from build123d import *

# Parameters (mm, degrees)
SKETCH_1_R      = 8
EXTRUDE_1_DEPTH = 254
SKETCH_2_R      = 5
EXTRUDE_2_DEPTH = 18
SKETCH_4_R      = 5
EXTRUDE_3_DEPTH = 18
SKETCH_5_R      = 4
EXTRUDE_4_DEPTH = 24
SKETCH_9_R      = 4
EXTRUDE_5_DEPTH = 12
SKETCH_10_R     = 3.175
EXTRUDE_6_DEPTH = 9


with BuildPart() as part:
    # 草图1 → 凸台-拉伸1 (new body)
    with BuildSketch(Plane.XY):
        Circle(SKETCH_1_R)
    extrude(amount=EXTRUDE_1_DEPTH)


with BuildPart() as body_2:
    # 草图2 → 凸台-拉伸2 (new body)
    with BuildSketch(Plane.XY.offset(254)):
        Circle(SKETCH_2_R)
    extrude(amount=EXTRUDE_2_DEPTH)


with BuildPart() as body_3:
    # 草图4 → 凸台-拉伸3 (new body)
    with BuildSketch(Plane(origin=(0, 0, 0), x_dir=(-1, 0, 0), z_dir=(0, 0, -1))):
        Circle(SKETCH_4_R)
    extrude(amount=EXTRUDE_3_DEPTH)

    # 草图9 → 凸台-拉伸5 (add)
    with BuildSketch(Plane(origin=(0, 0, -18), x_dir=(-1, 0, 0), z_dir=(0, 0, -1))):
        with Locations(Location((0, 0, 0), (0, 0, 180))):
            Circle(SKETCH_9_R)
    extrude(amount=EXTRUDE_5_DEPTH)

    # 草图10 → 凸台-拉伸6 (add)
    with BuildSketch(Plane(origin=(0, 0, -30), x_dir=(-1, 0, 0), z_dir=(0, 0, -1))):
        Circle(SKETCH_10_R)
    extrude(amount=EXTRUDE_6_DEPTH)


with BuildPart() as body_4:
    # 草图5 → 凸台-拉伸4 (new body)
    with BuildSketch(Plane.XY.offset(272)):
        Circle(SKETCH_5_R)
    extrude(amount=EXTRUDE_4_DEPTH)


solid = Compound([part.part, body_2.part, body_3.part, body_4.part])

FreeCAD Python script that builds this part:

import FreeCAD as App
import Part
import Sketcher
Q = App.Units.Quantity

doc = App.newDocument("Part")
body = doc.addObject("PartDesign::Body", "Body")

# Sketch on XY plane
sketch1 = body.newObject("Sketcher::SketchObject", "Sketch")
sketch1.AttachmentSupport = (doc.getObject("XY_Plane"), [""])
sketch1.MapMode = "FlatFace"
sketch1.addGeometry(Part.Circle(App.Vector(0, 0, 0), App.Vector(0, 0, 1), 8), False)
sketch1.addConstraint(Sketcher.Constraint("Coincident", 0, 3, -1, 1))
sketch1.addConstraint(Sketcher.Constraint("Diameter", 0, Q("16 mm")))
pad1 = body.newObject("PartDesign::Pad", "Pad")
pad1.Profile = sketch1
pad1.Length = 254
body2 = doc.addObject("PartDesign::Body", "Body001")

# Sketch on XY plane
sketch2 = body2.newObject("Sketcher::SketchObject", "Sketch001")
sketch2.AttachmentSupport = (doc.getObject("XY_Plane001"), [""])
sketch2.MapMode = "FlatFace"
sketch2.AttachmentOffset = App.Placement(App.Vector(0, 0, 254), App.Rotation())
sketch2.addGeometry(Part.Circle(App.Vector(0, 0, 0), App.Vector(0, 0, 1), 5), False)
sketch2.addConstraint(Sketcher.Constraint("Coincident", 0, 3, -1, 1))
sketch2.addConstraint(Sketcher.Constraint("Diameter", 0, Q("10 mm")))
pad2 = body2.newObject("PartDesign::Pad", "Pad001")
pad2.Profile = sketch2
pad2.Length = 18
body3 = doc.addObject("PartDesign::Body", "Body002")

# Sketch on XY plane
sketch3 = body3.newObject("Sketcher::SketchObject", "Sketch002")
sketch3.AttachmentSupport = (doc.getObject("XY_Plane002"), [""])
sketch3.MapMode = "FlatFace"
sketch3.addGeometry(Part.Circle(App.Vector(0, 0, 0), App.Vector(0, 0, 1), 5), False)
sketch3.addConstraint(Sketcher.Constraint("Coincident", 0, 3, -1, 1))
sketch3.addConstraint(Sketcher.Constraint("Diameter", 0, Q("10 mm")))
pad3 = body3.newObject("PartDesign::Pad", "Pad002")
pad3.Profile = sketch3
pad3.Length = 18
pad3.Reversed = True

# Sketch on XY plane
sketch4 = body3.newObject("Sketcher::SketchObject", "Sketch003")
sketch4.AttachmentSupport = (doc.getObject("XY_Plane002"), [""])
sketch4.MapMode = "FlatFace"
sketch4.AttachmentOffset = App.Placement(App.Vector(0, 0, -18), App.Rotation())
sketch4.addGeometry(Part.Circle(App.Vector(0, 0, 0), App.Vector(0, 0, 1), 4), False)
sketch4.addConstraint(Sketcher.Constraint("Coincident", 0, 3, -1, 1))
sketch4.addConstraint(Sketcher.Constraint("Diameter", 0, Q("8 mm")))
pad4 = body3.newObject("PartDesign::Pad", "Pad003")
pad4.Profile = sketch4
pad4.Length = 12
pad4.Reversed = True

# Sketch on XY plane
sketch5 = body3.newObject("Sketcher::SketchObject", "Sketch004")
sketch5.AttachmentSupport = (doc.getObject("XY_Plane002"), [""])
sketch5.MapMode = "FlatFace"
sketch5.AttachmentOffset = App.Placement(App.Vector(0, 0, -30), App.Rotation())
sketch5.addGeometry(Part.Circle(App.Vector(0, 0, 0), App.Vector(0, 0, 1), 3.2), False)
sketch5.addConstraint(Sketcher.Constraint("Coincident", 0, 3, -1, 1))
sketch5.addConstraint(Sketcher.Constraint("Diameter", 0, Q("6.35 mm")))
pad5 = body3.newObject("PartDesign::Pad", "Pad004")
pad5.Profile = sketch5
pad5.Length = 9
pad5.Reversed = True
body4 = doc.addObject("PartDesign::Body", "Body003")

# Sketch on XY plane
sketch6 = body4.newObject("Sketcher::SketchObject", "Sketch005")
sketch6.AttachmentSupport = (doc.getObject("XY_Plane003"), [""])
sketch6.MapMode = "FlatFace"
sketch6.AttachmentOffset = App.Placement(App.Vector(0, 0, 272), App.Rotation())
sketch6.addGeometry(Part.Circle(App.Vector(0, 0, 0), App.Vector(0, 0, 1), 4), False)
sketch6.addConstraint(Sketcher.Constraint("Coincident", 0, 3, -1, 1))
sketch6.addConstraint(Sketcher.Constraint("Diameter", 0, Q("8 mm")))
pad6 = body4.newObject("PartDesign::Pad", "Pad005")
pad6.Profile = sketch6
pad6.Length = 24

doc.recompute()
